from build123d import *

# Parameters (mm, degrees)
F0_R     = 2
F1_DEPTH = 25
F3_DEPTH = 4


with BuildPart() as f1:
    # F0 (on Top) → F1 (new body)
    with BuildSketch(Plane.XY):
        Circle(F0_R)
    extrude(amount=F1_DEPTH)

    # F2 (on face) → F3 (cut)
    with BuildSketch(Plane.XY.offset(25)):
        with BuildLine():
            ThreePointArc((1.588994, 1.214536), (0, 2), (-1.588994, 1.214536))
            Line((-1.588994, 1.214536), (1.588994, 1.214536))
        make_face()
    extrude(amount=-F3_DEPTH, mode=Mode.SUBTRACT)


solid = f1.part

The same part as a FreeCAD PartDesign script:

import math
import FreeCAD as App
import Part
import Sketcher

V = App.Vector
Q = App.Units.Quantity

doc = App.newDocument("Part")
body = doc.addObject("PartDesign::Body", "Body")

# Sketch on XY plane
sketch1 = body.newObject("Sketcher::SketchObject", "Sketch")
sketch1.AttachmentSupport = (doc.getObject("XY_Plane"), [""])
sketch1.MapMode = "FlatFace"
sketch1.addGeometry(Part.Circle(V(0, 0, 0), V(0, 0, 1), 2), False)
sketch1.addConstraint([
    Sketcher.Constraint("Coincident", 0, 3, -1, 1),
    Sketcher.Constraint("Diameter", 0, Q("4 mm")),
])
pad1 = body.newObject("PartDesign::Pad", "Pad")
pad1.Profile = sketch1
pad1.Length = 25

# Sketch on XY plane
sketch2 = body.newObject("Sketcher::SketchObject", "Sketch001")
sketch2.AttachmentSupport = (doc.getObject("XY_Plane"), [""])
sketch2.MapMode = "FlatFace"
sketch2.AttachmentOffset = App.Placement(V(0, 0, 25), App.Rotation())
sketch2.addGeometry([
    Part.ArcOfCircle(Part.Circle(V(0, 0, 0), V(0, 0, 1), 2), math.radians(37), math.radians(143)),
    Part.LineSegment(V(-1.6, 1.2, 0), V(1.6, 1.2, 0)),
], False)
sketch2.addConstraint([
    Sketcher.Constraint("Coincident", 0, 1, 1, 2),
    Sketcher.Constraint("Coincident", 1, 1, 0, 2),
    Sketcher.Constraint("Horizontal", 1),
    Sketcher.Constraint("Coincident", 0, 3, -1, 1),
    Sketcher.Constraint("Radius", 0, Q("2 mm")),
    Sketcher.Constraint("DistanceX", 1, 1, 1, 2, Q("3.177988 mm")),
])
pocket1 = body.newObject("PartDesign::Pocket", "Pocket")
pocket1.Profile = sketch2
pocket1.Length = 4

doc.recompute()
